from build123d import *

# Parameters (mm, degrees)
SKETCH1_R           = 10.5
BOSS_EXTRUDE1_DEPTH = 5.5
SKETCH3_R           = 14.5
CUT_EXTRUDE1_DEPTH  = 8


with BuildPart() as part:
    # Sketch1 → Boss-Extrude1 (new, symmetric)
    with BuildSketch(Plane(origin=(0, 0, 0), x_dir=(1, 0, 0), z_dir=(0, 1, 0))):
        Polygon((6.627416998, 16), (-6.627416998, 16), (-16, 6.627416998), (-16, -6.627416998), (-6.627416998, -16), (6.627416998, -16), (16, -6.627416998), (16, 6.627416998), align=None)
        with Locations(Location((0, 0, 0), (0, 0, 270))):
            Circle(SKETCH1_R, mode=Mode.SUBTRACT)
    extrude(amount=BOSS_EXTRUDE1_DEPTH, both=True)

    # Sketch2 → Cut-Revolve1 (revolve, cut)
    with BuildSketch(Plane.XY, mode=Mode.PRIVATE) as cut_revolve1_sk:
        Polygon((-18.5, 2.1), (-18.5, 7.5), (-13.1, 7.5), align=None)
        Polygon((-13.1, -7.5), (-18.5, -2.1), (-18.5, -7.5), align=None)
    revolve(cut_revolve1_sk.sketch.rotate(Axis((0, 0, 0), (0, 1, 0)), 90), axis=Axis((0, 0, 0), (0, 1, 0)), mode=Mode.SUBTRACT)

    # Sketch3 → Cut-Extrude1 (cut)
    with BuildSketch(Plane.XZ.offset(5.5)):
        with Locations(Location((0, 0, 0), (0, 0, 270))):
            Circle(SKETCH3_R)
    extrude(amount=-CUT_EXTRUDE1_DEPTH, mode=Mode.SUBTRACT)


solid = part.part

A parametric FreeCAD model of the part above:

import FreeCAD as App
import Part
import Sketcher
Q = App.Units.Quantity


def add_polygon(sketch, points):
    """Adds a closed chain of lines whose ends are joined by coincident constraints."""
    first, n = sketch.GeometryCount, len(points)
    for a, b in zip(points, points[1:] + points[:1]):
        sketch.addGeometry(Part.LineSegment(App.Vector(*a, 0), App.Vector(*b, 0)), False)
    for i in range(n):
        sketch.addConstraint(Sketcher.Constraint("Coincident", first + i, 2, first + (i + 1) % n, 1))

doc = App.newDocument("Part")
body = doc.addObject("PartDesign::Body", "Body")

# Sketch on XZ plane
sketch1 = body.newObject("Sketcher::SketchObject", "Sketch")
sketch1.AttachmentSupport = (doc.getObject("XZ_Plane"), [""])
sketch1.MapMode = "FlatFace"
add_polygon(sketch1, [(7, -16), (-7, -16), (-16, -7), (-16, 7), (-7, 16), (7, 16), (16, 7), (16, -7)])  # lines 0-7
sketch1.addGeometry(Part.Circle(App.Vector(0, 0, 0), App.Vector(0, 0, 1), 10), False)  # 8
sketch1.addConstraint(Sketcher.Constraint("Horizontal", 0))
sketch1.addConstraint(Sketcher.Constraint("Vertical", 2))
sketch1.addConstraint(Sketcher.Constraint("Horizontal", 4))
sketch1.addConstraint(Sketcher.Constraint("Vertical", 6))
sketch1.addConstraint(Sketcher.Constraint("Coincident", 8, 3, -1, 1))
sketch1.addConstraint(Sketcher.Constraint("Symmetric", 0, 2, 4, 2, -1, 1))
sketch1.addConstraint(Sketcher.Constraint("Symmetric", 1, 2, 5, 2, -1, 1))
sketch1.addConstraint(Sketcher.Constraint("Perpendicular", 1, 3))
sketch1.addConstraint(Sketcher.Constraint("Perpendicular", 5, 7))
sketch1.addConstraint(Sketcher.Constraint("Horizontal", 2, 2, 5, 2))
sketch1.addConstraint(Sketcher.Constraint("Horizontal", 1, 2, 6, 2))
sketch1.addConstraint(Sketcher.Constraint("Vertical", 0, 2, 3, 2))
sketch1.addConstraint(Sketcher.Constraint("Equal", 4, 2))
sketch1.addConstraint(Sketcher.Constraint("Diameter", 8, Q("21 mm")))
sketch1.addConstraint(Sketcher.Constraint("DistanceY", 0, 2, -1, 1, Q("16 mm")))
sketch1.addConstraint(Sketcher.Constraint("DistanceX", 0, 2, 0, 1, Q("13.254834 mm")))
pad1 = body.newObject("PartDesign::Pad", "Pad")
pad1.Profile = sketch1
pad1.Length = 11
pad1.Midplane = True

# Sketch on XY plane
sketch2 = body.newObject("Sketcher::SketchObject", "Sketch001")
sketch2.AttachmentSupport = (doc.getObject("XY_Plane"), [""])
sketch2.MapMode = "FlatFace"
add_polygon(sketch2, [(-18, 8), (-18, 2), (-13, 8)])  # lines 0-2
add_polygon(sketch2, [(-13, -8), (-18, -2), (-18, -8)])  # lines 3-5
sketch2.addConstraint(Sketcher.Constraint("Vertical", 0))
sketch2.addConstraint(Sketcher.Constraint("Horizontal", 2))
sketch2.addConstraint(Sketcher.Constraint("Vertical", 4))
sketch2.addConstraint(Sketcher.Constraint("Horizontal", 5))
sketch2.addConstraint(Sketcher.Constraint("Symmetric", 0, 2, 3, 2, -1))
sketch2.addConstraint(Sketcher.Constraint("Symmetric", 1, 2, 5, 2, -1))
sketch2.addConstraint(Sketcher.Constraint("Perpendicular", 1, 3))
sketch2.addConstraint(Sketcher.Constraint("DistanceX", 2, 2, 2, 1, Q("5.4 mm")))
sketch2.addConstraint(Sketcher.Constraint("DistanceY", 4, 2, 2, 2, Q("15 mm")))
sketch2.addConstraint(Sketcher.Constraint("DistanceX", 0, 2, -1, 1, Q("18.5 mm")))
groove = body.newObject("PartDesign::Groove", "Groove")
groove.Profile = sketch2
groove.ReferenceAxis = (sketch2, ["V_Axis"])
groove.Angle = 360

# Sketch on XZ plane
sketch3 = body.newObject("Sketcher::SketchObject", "Sketch002")
sketch3.AttachmentSupport = (doc.getObject("XZ_Plane"), [""])
sketch3.MapMode = "FlatFace"
sketch3.AttachmentOffset = App.Placement(App.Vector(0, 0, 5.5), App.Rotation())
sketch3.addGeometry(Part.Circle(App.Vector(0, 0, 0), App.Vector(0, 0, 1), 14), False)
sketch3.addConstraint(Sketcher.Constraint("Coincident", 0, 3, -1, 1))
sketch3.addConstraint(Sketcher.Constraint("Diameter", 0, Q("29 mm")))
pocket1 = body.newObject("PartDesign::Pocket", "Pocket")
pocket1.Profile = sketch3
pocket1.Length = 8

doc.recompute()
